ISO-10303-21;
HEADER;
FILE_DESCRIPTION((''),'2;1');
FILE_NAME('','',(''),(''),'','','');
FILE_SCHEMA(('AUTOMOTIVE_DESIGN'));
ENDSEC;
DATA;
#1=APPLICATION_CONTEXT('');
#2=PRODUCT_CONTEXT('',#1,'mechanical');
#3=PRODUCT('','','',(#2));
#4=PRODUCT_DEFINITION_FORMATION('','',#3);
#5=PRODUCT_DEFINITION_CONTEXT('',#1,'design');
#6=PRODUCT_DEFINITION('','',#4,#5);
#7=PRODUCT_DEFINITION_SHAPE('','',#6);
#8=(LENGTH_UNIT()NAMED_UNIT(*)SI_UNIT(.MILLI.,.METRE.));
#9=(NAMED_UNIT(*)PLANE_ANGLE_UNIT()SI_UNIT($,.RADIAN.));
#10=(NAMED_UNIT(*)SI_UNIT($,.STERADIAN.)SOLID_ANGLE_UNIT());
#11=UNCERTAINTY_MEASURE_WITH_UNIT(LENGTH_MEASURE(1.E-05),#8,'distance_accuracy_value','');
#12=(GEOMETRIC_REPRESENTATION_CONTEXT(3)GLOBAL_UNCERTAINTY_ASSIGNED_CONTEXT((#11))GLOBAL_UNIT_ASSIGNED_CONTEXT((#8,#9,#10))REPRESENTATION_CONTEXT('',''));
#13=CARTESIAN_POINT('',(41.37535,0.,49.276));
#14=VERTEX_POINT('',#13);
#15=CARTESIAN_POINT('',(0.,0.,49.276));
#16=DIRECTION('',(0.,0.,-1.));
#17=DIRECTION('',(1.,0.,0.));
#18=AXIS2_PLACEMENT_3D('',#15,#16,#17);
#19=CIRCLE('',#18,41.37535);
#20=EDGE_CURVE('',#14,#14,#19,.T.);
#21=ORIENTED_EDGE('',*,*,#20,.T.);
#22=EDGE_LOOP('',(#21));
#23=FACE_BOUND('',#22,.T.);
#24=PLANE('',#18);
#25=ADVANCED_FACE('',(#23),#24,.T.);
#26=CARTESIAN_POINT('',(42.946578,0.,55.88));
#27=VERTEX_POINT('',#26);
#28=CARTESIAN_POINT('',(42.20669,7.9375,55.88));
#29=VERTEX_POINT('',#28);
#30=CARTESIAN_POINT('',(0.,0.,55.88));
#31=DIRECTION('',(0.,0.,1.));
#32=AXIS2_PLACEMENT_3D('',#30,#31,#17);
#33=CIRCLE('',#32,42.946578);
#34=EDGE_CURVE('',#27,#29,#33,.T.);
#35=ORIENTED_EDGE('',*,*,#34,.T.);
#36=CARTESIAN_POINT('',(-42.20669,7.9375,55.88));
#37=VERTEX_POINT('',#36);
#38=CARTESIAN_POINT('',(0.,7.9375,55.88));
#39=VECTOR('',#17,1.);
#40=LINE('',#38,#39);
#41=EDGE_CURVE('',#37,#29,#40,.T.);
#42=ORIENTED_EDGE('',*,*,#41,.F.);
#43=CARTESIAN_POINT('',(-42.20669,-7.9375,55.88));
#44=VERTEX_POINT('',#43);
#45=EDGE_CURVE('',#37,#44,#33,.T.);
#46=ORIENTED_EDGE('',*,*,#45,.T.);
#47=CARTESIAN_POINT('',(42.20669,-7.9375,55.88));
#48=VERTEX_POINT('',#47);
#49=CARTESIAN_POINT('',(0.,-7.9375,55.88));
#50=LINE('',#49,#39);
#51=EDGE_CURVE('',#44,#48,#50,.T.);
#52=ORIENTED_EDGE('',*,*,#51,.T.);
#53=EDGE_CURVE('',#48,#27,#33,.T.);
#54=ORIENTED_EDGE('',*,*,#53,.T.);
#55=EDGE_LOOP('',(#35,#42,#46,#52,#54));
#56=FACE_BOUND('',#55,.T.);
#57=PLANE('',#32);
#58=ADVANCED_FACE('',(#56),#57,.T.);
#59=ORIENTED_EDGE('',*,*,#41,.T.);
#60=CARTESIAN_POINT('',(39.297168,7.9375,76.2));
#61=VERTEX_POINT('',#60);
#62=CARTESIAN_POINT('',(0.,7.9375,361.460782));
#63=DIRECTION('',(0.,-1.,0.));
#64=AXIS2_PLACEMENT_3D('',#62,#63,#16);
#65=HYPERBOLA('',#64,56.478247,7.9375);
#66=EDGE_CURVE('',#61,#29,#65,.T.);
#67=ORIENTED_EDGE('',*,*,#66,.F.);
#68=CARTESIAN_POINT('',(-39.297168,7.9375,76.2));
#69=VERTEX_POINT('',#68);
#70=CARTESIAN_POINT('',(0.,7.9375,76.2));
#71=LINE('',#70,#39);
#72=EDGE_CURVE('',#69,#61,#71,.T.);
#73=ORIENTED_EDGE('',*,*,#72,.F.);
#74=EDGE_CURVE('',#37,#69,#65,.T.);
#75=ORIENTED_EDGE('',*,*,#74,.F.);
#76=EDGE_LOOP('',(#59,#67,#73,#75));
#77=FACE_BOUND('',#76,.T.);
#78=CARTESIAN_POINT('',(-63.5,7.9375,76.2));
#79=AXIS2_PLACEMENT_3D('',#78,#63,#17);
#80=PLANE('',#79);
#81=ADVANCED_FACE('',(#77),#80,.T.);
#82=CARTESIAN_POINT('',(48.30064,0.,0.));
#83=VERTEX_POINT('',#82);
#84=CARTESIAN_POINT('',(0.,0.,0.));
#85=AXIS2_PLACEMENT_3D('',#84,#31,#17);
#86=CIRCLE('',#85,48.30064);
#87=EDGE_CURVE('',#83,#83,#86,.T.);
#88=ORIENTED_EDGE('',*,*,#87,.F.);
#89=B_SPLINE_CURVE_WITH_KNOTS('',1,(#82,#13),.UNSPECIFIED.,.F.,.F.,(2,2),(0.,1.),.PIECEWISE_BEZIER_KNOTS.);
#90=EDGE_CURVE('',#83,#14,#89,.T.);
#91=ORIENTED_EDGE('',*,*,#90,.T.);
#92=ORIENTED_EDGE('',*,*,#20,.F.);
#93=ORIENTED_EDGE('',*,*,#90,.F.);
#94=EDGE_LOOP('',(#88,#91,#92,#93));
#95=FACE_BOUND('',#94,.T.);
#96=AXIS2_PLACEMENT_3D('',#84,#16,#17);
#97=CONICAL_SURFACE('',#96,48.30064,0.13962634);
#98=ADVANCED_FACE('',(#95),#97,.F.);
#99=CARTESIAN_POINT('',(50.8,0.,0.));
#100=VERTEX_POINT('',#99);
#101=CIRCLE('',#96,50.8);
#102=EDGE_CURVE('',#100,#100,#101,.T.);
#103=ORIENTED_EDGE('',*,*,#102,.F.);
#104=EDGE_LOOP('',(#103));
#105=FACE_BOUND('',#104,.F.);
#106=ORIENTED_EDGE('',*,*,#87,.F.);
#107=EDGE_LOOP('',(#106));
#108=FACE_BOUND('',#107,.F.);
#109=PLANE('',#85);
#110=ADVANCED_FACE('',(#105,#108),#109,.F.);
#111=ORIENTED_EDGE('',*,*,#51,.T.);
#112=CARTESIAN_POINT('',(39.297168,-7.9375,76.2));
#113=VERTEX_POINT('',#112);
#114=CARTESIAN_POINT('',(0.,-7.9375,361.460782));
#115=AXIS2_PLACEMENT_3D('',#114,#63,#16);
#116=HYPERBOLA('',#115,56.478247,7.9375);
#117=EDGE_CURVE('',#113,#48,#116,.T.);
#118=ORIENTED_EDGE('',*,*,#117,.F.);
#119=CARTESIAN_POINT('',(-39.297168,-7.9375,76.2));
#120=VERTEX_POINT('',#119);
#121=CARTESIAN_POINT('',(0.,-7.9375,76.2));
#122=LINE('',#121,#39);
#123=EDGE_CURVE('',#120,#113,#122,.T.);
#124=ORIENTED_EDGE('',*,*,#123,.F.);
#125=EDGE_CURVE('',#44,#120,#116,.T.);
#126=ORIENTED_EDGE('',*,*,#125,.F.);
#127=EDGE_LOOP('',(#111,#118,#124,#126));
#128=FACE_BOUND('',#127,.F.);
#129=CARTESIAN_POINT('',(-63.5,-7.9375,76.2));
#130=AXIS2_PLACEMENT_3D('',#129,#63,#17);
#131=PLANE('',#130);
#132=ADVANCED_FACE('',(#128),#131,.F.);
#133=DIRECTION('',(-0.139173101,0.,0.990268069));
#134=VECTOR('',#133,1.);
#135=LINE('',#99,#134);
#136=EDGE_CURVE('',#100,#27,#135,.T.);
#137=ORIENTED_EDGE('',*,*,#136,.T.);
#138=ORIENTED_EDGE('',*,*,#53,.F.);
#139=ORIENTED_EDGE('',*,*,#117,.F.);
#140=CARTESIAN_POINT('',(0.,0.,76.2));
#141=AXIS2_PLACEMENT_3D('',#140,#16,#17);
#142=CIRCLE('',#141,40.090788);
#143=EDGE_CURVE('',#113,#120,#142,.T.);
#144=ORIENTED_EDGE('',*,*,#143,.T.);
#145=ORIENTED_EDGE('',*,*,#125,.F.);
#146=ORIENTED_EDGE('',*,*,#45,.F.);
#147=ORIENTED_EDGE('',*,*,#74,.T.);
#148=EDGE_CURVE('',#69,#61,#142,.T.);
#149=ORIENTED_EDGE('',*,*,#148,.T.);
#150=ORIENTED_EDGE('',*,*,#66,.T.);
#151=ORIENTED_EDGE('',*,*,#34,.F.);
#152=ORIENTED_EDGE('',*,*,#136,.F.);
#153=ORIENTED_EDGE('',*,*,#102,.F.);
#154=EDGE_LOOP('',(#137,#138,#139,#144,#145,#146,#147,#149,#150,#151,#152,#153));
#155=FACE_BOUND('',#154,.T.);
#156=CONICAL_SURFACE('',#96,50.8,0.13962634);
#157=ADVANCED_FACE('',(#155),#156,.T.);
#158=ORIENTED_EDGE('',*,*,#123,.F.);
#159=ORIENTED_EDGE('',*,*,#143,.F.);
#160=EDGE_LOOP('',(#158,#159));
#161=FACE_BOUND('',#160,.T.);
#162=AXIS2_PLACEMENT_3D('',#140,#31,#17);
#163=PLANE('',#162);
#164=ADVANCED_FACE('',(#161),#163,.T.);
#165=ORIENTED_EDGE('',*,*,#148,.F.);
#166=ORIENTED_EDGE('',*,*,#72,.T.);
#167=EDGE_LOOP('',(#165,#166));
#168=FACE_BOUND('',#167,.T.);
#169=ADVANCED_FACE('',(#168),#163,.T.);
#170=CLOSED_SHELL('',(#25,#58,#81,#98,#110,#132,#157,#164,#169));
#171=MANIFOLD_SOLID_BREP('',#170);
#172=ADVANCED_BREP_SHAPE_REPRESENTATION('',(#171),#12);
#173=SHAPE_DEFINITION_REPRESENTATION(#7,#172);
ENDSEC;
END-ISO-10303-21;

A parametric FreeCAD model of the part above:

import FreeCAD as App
import Part
import Sketcher
Q = App.Units.Quantity

doc = App.newDocument("Part")
params = doc.addObject("Spreadsheet::Sheet", "Params")
for row, (alias, value) in enumerate([
    ("sketch1_diameter", "4 in"),
    ("pad1_length", "3 in"),
    ("pad1_taper", "-8 deg"),
    ("sketch2_width", "5 in"),
    ("sketch2_height", "0.625 in"),
    ("pocket1_length", "0.8 in"),
    ("pocket2_length", "1.94 in"),
    ("pocket2_taper", "-8 deg"),
], start=1):
    params.set(f"A{row}", alias)
    params.set(f"B{row}", "=" + value)
    params.setAlias(f"B{row}", alias)

body = doc.addObject("PartDesign::Body", "Body")

sketch1 = body.newObject("Sketcher::SketchObject", "Sketch")
sketch1.AttachmentSupport = (doc.getObject("XY_Plane"), [""])
sketch1.MapMode = "FlatFace"
sketch1.addGeometry(Part.Circle(App.Vector(0, 0, 0), App.Vector(0, 0, 1), 51), False)
sketch1.addConstraint(Sketcher.Constraint("Coincident", 0, 3, -1, 1))
sketch1.addConstraint(Sketcher.Constraint("Diameter", 0, Q("4 in")))
sketch1.setExpression("Constraints[1]", "Params.sketch1_diameter")
pad1 = body.newObject("PartDesign::Pad", "Pad")
pad1.Profile = sketch1
pad1.setExpression("Length", "Params.pad1_length")
pad1.setExpression("TaperAngle", "Params.pad1_taper")

sketch2 = body.newObject("Sketcher::SketchObject", "Sketch001")
sketch2.AttachmentSupport = (doc.getObject("XY_Plane"), [""])
sketch2.MapMode = "FlatFace"
sketch2.AttachmentOffset = App.Placement(App.Vector(0, 0, 3 * 25.4), App.Rotation())
sketch2.addGeometry(Part.LineSegment(App.Vector(-64, 8, 0), App.Vector(-64, -8, 0)), False)
sketch2.addGeometry(Part.LineSegment(App.Vector(-64, -8, 0), App.Vector(64, -8, 0)), False)
sketch2.addGeometry(Part.LineSegment(App.Vector(64, -8, 0), App.Vector(64, 8, 0)), False)
sketch2.addGeometry(Part.LineSegment(App.Vector(64, 8, 0), App.Vector(-64, 8, 0)), False)
sketch2.addConstraint(Sketcher.Constraint("Coincident", 0, 2, 1, 1))
sketch2.addConstraint(Sketcher.Constraint("Coincident", 1, 2, 2, 1))
sketch2.addConstraint(Sketcher.Constraint("Coincident", 2, 2, 3, 1))
sketch2.addConstraint(Sketcher.Constraint("Coincident", 3, 2, 0, 1))
sketch2.addConstraint(Sketcher.Constraint("Vertical", 0))
sketch2.addConstraint(Sketcher.Constraint("Horizontal", 1))
sketch2.addConstraint(Sketcher.Constraint("Vertical", 2))
sketch2.addConstraint(Sketcher.Constraint("Horizontal", 3))
sketch2.addConstraint(Sketcher.Constraint("Symmetric", 0, 2, 2, 2, -1, 1))
sketch2.addConstraint(Sketcher.Constraint("DistanceX", 1, 1, 1, 2, Q("5 in")))
sketch2.addConstraint(Sketcher.Constraint("DistanceY", 0, 2, 0, 1, Q("0.625 in")))
sketch2.setExpression("Constraints[9]", "Params.sketch2_width")
sketch2.setExpression("Constraints[10]", "Params.sketch2_height")
pocket1 = body.newObject("PartDesign::Pocket", "Pocket")
pocket1.Profile = sketch2
pocket1.setExpression("Length", "Params.pocket1_length")

sketch3 = body.newObject("Sketcher::SketchObject", "Sketch002")
sketch3.AttachmentSupport = (doc.getObject("XY_Plane"), [""])
sketch3.MapMode = "FlatFace"
sketch3.addGeometry(Part.Circle(App.Vector(0, 0, 0), App.Vector(0, 0, 1), 48), False)
sketch3.addConstraint(Sketcher.Constraint("Coincident", 0, 3, -1, 1))
sketch3.addConstraint(Sketcher.Constraint("Diameter", 0, Q("3.8032 in")))
pocket2 = body.newObject("PartDesign::Pocket", "Pocket001")
pocket2.Profile = sketch3
pocket2.setExpression("Length", "Params.pocket2_length")
pocket2.Reversed = True
pocket2.setExpression("TaperAngle", "Params.pocket2_taper")

doc.recompute()
